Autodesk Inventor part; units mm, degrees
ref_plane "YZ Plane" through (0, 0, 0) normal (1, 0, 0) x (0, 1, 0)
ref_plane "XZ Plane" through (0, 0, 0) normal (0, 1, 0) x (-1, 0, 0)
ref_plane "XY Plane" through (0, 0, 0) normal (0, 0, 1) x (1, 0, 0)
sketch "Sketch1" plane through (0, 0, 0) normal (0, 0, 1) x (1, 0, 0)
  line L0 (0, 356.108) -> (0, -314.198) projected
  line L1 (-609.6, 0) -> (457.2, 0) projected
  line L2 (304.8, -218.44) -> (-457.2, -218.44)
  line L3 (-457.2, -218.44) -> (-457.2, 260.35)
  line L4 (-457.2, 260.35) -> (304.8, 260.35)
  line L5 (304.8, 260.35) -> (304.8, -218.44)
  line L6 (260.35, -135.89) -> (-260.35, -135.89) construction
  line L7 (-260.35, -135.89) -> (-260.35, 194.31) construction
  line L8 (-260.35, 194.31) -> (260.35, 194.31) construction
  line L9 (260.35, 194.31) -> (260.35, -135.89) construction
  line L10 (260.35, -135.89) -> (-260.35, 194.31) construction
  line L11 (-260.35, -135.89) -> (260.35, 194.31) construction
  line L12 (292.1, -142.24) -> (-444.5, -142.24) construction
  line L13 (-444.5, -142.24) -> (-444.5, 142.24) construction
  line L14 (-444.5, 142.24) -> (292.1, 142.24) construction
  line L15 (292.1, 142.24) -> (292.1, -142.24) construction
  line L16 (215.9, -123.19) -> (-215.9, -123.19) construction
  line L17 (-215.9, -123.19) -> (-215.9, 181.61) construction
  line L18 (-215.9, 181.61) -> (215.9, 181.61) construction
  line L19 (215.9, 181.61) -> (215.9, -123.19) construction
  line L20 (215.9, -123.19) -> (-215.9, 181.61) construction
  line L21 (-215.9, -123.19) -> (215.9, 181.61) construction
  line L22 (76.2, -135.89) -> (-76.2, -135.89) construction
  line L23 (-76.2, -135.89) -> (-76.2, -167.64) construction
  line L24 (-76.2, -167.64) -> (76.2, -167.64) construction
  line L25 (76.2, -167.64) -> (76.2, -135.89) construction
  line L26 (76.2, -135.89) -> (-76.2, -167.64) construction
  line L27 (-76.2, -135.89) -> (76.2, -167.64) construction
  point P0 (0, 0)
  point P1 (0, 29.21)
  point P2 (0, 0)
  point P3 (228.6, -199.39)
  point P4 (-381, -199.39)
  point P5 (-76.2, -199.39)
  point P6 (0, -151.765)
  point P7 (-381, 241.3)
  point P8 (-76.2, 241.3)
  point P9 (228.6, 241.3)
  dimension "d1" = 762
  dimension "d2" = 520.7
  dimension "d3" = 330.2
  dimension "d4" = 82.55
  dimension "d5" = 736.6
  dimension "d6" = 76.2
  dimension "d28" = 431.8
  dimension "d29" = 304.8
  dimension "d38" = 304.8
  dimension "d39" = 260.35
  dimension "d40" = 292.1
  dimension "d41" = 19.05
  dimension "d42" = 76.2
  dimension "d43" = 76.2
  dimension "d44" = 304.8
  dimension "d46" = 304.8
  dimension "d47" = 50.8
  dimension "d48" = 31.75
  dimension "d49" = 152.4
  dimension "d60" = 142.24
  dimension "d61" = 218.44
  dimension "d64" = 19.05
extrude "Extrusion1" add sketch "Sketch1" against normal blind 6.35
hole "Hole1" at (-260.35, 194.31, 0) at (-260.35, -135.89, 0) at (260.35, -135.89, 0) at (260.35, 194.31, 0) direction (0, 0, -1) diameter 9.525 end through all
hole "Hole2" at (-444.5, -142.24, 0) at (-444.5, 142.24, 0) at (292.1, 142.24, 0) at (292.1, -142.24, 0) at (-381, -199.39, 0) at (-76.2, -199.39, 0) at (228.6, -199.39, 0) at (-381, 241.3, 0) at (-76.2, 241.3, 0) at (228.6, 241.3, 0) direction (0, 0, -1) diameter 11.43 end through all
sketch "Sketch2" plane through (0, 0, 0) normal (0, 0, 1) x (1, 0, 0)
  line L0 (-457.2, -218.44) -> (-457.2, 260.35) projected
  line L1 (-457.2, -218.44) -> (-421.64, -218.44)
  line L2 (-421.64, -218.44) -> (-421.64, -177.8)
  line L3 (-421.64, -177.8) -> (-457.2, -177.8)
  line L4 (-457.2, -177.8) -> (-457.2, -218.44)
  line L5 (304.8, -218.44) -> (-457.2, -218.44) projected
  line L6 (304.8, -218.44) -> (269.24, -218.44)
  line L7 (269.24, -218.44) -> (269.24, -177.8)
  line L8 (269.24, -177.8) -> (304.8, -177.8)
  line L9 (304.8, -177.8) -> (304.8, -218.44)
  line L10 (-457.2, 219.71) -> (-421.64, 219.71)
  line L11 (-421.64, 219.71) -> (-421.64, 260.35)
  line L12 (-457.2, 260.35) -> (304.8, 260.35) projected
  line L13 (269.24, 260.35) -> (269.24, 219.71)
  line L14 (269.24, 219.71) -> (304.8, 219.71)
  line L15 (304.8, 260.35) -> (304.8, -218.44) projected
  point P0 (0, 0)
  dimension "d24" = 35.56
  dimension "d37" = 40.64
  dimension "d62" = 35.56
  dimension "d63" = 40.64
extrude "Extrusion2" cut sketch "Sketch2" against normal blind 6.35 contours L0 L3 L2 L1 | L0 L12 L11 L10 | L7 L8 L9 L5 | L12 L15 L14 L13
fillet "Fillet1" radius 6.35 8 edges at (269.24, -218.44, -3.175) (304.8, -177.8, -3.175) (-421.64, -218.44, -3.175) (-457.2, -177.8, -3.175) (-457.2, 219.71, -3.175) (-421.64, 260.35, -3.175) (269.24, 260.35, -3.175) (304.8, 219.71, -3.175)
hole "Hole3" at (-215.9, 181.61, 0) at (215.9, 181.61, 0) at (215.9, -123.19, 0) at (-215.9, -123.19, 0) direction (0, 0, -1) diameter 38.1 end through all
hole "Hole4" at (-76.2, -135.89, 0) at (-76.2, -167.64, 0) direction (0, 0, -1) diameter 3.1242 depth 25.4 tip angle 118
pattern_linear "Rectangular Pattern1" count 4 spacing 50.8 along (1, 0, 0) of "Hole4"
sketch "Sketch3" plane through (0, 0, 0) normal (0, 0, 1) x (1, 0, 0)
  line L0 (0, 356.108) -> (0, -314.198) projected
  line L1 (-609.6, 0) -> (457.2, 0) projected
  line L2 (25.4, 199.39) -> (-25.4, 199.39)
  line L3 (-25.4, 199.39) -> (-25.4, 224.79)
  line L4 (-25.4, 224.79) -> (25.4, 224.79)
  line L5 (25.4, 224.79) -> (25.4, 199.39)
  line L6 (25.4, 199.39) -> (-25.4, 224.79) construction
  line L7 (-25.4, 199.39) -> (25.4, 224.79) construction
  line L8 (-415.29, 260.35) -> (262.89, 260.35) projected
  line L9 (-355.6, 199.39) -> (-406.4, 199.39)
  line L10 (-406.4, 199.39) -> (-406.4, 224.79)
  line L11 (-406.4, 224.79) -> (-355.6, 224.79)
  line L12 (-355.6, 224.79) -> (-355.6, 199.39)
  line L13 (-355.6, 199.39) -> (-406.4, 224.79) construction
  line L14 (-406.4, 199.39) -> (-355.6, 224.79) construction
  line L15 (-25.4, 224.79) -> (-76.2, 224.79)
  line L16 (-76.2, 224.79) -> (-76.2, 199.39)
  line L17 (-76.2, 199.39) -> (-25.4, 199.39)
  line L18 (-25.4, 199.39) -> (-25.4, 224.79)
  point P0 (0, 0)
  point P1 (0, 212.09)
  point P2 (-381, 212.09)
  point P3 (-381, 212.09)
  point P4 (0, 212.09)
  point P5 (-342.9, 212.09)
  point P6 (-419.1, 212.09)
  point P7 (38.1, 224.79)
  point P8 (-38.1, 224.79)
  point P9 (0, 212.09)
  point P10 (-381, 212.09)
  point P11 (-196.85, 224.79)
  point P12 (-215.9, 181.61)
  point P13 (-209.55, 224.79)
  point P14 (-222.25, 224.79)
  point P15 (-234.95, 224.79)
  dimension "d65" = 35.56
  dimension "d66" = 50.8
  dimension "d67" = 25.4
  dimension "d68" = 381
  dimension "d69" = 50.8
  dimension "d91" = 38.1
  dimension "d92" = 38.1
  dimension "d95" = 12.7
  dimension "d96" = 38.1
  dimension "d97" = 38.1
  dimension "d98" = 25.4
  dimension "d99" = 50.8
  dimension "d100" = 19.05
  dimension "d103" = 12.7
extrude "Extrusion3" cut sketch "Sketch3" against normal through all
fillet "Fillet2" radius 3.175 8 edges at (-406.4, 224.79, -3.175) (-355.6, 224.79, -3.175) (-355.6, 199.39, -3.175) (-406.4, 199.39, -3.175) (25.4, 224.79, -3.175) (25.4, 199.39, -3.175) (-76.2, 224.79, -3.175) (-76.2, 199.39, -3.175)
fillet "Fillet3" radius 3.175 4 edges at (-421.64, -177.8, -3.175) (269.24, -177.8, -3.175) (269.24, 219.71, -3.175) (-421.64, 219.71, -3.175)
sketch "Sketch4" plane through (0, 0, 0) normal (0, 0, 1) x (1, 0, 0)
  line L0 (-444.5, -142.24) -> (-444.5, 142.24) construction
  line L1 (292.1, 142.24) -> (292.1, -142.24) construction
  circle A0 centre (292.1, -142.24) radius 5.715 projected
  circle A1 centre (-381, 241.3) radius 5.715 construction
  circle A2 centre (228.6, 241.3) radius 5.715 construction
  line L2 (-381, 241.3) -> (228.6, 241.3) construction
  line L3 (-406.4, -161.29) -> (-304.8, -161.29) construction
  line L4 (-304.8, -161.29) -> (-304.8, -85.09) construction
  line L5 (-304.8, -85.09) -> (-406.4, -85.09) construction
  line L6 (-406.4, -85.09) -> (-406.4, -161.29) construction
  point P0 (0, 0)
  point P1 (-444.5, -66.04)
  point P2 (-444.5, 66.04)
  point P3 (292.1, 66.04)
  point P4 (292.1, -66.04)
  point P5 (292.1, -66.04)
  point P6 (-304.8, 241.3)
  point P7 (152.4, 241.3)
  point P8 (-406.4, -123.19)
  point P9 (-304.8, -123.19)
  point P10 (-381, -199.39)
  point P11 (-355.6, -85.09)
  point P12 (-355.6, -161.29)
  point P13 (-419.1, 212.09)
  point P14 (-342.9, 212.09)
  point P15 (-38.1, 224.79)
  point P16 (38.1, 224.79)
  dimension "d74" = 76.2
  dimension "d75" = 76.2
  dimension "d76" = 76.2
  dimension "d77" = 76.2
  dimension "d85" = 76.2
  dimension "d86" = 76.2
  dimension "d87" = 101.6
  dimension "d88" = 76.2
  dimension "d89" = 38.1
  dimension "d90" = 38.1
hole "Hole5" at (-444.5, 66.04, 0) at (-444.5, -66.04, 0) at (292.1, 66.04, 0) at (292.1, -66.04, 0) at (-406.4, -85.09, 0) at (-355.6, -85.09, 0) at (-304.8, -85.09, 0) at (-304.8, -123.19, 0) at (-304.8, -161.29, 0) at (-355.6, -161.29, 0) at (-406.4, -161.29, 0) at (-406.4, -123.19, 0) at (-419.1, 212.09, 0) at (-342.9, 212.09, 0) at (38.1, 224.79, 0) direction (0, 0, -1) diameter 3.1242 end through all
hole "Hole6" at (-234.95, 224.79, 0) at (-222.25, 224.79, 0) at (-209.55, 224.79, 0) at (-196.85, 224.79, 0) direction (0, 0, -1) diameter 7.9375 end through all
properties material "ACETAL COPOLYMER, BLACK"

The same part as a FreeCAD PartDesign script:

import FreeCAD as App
import Part
import Sketcher
Q = App.Units.Quantity


def edges_at(feature, points):
    """Names of the edges that pass closest to the given points."""
    edges = feature.Shape.Edges
    near = lambda p: min(range(len(edges)), key=lambda i: edges[i].distToShape(Part.Vertex(*p))[0])
    return sorted({f"Edge{near(p) + 1}" for p in points})

doc = App.newDocument("Part")
params = doc.addObject("Spreadsheet::Sheet", "Params")
for row, (alias, value) in enumerate([
    ("sketch1_width", "30 in"),
    ("pad1_length", "0.25 in"),
    ("sketch2_diameter", "0.375 in"),
    ("hole_diameter", "0.375 in"),
    ("sketch3_diameter", "0.45 in"),
    ("hole2_diameter", "0.45 in"),
    ("sketch4_width", "1.4 in"),
    ("sketch4_height", "1.6 in"),
    ("pocket1_length", "0.25 in"),
    ("fillet_radius", "0.25 in"),
    ("sketch5_diameter", "1.5 in"),
    ("hole3_diameter", "1.5 in"),
    ("sketch6_diameter", "0.123 in"),
    ("hole4_diameter", "0.123 in"),
    ("hole4_depth", "1 in"),
    ("linearpattern_pitch", "2 in"),
    ("sketch7_width", "2 in"),
    ("sketch7_height", "1 in"),
    ("sketch7_width2", "4 in"),
    ("fillet2_radius", "0.125 in"),
    ("fillet3_radius", "0.125 in"),
    ("sketch8_diameter", "0.123 in"),
    ("hole5_diameter", "0.123 in"),
    ("sketch9_diameter", "0.3125 in"),
    ("hole6_diameter", "0.3125 in"),
], start=1):
    params.set(f"A{row}", alias)
    params.set(f"B{row}", "=" + value)
    params.setAlias(f"B{row}", alias)

body = doc.addObject("PartDesign::Body", "Body")

sketch1 = body.newObject("Sketcher::SketchObject", "Sketch")
sketch1.AttachmentSupport = (doc.getObject("XY_Plane"), [""])
sketch1.MapMode = "FlatFace"
sketch1.addGeometry([
    Part.LineSegment(App.Vector(305, 260, 0), App.Vector(-457, 260, 0)),
    Part.LineSegment(App.Vector(-457, 260, 0), App.Vector(-457, -218, 0)),
    Part.LineSegment(App.Vector(-457, -218, 0), App.Vector(305, -218, 0)),
    Part.LineSegment(App.Vector(305, -218, 0), App.Vector(305, 260, 0)),
], False)
sketch1.addConstraint([
    Sketcher.Constraint("Coincident", 0, 2, 1, 1),
    Sketcher.Constraint("Coincident", 1, 2, 2, 1),
    Sketcher.Constraint("Coincident", 2, 2, 3, 1),
    Sketcher.Constraint("Coincident", 3, 2, 0, 1),
    Sketcher.Constraint("Horizontal", 0),
    Sketcher.Constraint("Vertical", 1),
    Sketcher.Constraint("Horizontal", 2),
    Sketcher.Constraint("Vertical", 3),
    Sketcher.Constraint("DistanceX", 0, 2, 0, 1, Q("30 in")),
    Sketcher.Constraint("DistanceX", -1, 1, 2, 2, Q("12 in")),
    Sketcher.Constraint("DistanceY", 1, 2, -1, 1, Q("8.6 in")),
    Sketcher.Constraint("DistanceY", -1, 1, 0, 2, Q("10.25 in")),
])
sketch1.setExpression("Constraints[8]", "Params.sketch1_width")
pad1 = body.newObject("PartDesign::Pad", "Pad")
pad1.Profile = sketch1
pad1.setExpression("Length", "Params.pad1_length")
pad1.Reversed = True

sketch2 = body.newObject("Sketcher::SketchObject", "Sketch001")
sketch2.AttachmentSupport = (doc.getObject("XY_Plane"), [""])
sketch2.MapMode = "FlatFace"
sketch2.addGeometry([
    Part.Circle(App.Vector(-260.4, 194.3, 0), App.Vector(0, 0, 1), 4.8),
    Part.Circle(App.Vector(-260.4, -135.9, 0), App.Vector(0, 0, 1), 4.8),
    Part.Circle(App.Vector(260.4, -135.9, 0), App.Vector(0, 0, 1), 4.8),
    Part.Circle(App.Vector(260.4, 194.3, 0), App.Vector(0, 0, 1), 4.8),
], False)
sketch2.addConstraint([
    Sketcher.Constraint("Equal", 0, 1),
    Sketcher.Constraint("Equal", 1, 2),
    Sketcher.Constraint("Equal", 2, 3),
    Sketcher.Constraint("Symmetric", 1, 3, 2, 3, -2),
    Sketcher.Constraint("Symmetric", 0, 3, 3, 3, -2),
    Sketcher.Constraint("Vertical", 0, 3, 1, 3),
    Sketcher.Constraint("Diameter", 0, Q("0.375 in")),
    Sketcher.Constraint("DistanceY", 1, 3, 0, 3, Q("13 in")),
    Sketcher.Constraint("DistanceX", 1, 3, 2, 3, Q("20.5 in")),
    Sketcher.Constraint("DistanceY", -1, 1, 0, 3, Q("7.65 in")),
])
sketch2.setExpression("Constraints[6]", "Params.sketch2_diameter")
doc.recompute()
hole = body.newObject("PartDesign::Hole", "Hole")
hole.Profile = sketch2
hole.ThreadType = "None"
hole.setExpression("Diameter", "Params.hole_diameter")
hole.DepthType = "ThroughAll"

sketch3 = body.newObject("Sketcher::SketchObject", "Sketch002")
sketch3.AttachmentSupport = (doc.getObject("XY_Plane"), [""])
sketch3.MapMode = "FlatFace"
sketch3.addGeometry([
    Part.Circle(App.Vector(-444, -142, 0), App.Vector(0, 0, 1), 6),
    Part.Circle(App.Vector(-444, 142, 0), App.Vector(0, 0, 1), 6),
    Part.Circle(App.Vector(292, 142, 0), App.Vector(0, 0, 1), 6),
    Part.Circle(App.Vector(292, -142, 0), App.Vector(0, 0, 1), 6),
    Part.Circle(App.Vector(-381, -199, 0), App.Vector(0, 0, 1), 6),
    Part.Circle(App.Vector(-76, -199, 0), App.Vector(0, 0, 1), 6),
    Part.Circle(App.Vector(229, -199, 0), App.Vector(0, 0, 1), 6),
    Part.Circle(App.Vector(-381, 241, 0), App.Vector(0, 0, 1), 6),
    Part.Circle(App.Vector(-76, 241, 0), App.Vector(0, 0, 1), 6),
    Part.Circle(App.Vector(229, 241, 0), App.Vector(0, 0, 1), 6),
], False)
sketch3.addConstraint([
    Sketcher.Constraint("Equal", 0, 1),
    Sketcher.Constraint("Equal", 1, 2),
    Sketcher.Constraint("Equal", 2, 3),
    Sketcher.Constraint("Equal", 3, 4),
    Sketcher.Constraint("Equal", 4, 5),
    Sketcher.Constraint("Equal", 5, 6),
    Sketcher.Constraint("Equal", 6, 7),
    Sketcher.Constraint("Equal", 7, 8),
    Sketcher.Constraint("Equal", 8, 9),
    Sketcher.Constraint("Symmetric", 0, 3, 1, 3, -1),
    Sketcher.Constraint("Symmetric", 2, 3, 3, 3, -1),
    Sketcher.Constraint("Horizontal", 1, 3, 2, 3),
    Sketcher.Constraint("Horizontal", 4, 3, 5, 3),
    Sketcher.Constraint("Horizontal", 5, 3, 6, 3),
    Sketcher.Constraint("Horizontal", 7, 3, 8, 3),
    Sketcher.Constraint("Horizontal", 8, 3, 9, 3),
    Sketcher.Constraint("Vertical", 4, 3, 7, 3),
    Sketcher.Constraint("Vertical", 5, 3, 8, 3),
    Sketcher.Constraint("Vertical", 6, 3, 9, 3),
    Sketcher.Constraint("Diameter", 0, Q("0.45 in")),
    Sketcher.Constraint("DistanceX", 4, 3, -1, 1, Q("15 in")),
    Sketcher.Constraint("DistanceX", 5, 3, -1, 1, Q("3 in")),
    Sketcher.Constraint("DistanceX", -1, 1, 6, 3, Q("9 in")),
    Sketcher.Constraint("DistanceX", 1, 3, 2, 3, Q("29 in")),
    Sketcher.Constraint("DistanceX", 0, 3, -1, 1, Q("17.5 in")),
    Sketcher.Constraint("DistanceY", 0, 3, -1, 1, Q("5.6 in")),
    Sketcher.Constraint("DistanceY", -1, 1, 7, 3, Q("9.5 in")),
    Sketcher.Constraint("DistanceY", 4, 3, -1, 1, Q("7.85 in")),
])
sketch3.setExpression("Constraints[19]", "Params.sketch3_diameter")
doc.recompute()
hole2 = body.newObject("PartDesign::Hole", "Hole001")
hole2.Profile = sketch3
hole2.ThreadType = "None"
hole2.setExpression("Diameter", "Params.hole2_diameter")
hole2.DepthType = "ThroughAll"

sketch4 = body.newObject("Sketcher::SketchObject", "Sketch003")
sketch4.AttachmentSupport = (doc.getObject("XY_Plane"), [""])
sketch4.MapMode = "FlatFace"
sketch4.addGeometry([
    Part.LineSegment(App.Vector(-457, -178, 0), App.Vector(-457, -218, 0)),
    Part.LineSegment(App.Vector(-457, -218, 0), App.Vector(-422, -218, 0)),
    Part.LineSegment(App.Vector(-422, -218, 0), App.Vector(-422, -178, 0)),
    Part.LineSegment(App.Vector(-422, -178, 0), App.Vector(-457, -178, 0)),
    Part.LineSegment(App.Vector(-457, 260, 0), App.Vector(-457, 220, 0)),
    Part.LineSegment(App.Vector(-457, 220, 0), App.Vector(-422, 220, 0)),
    Part.LineSegment(App.Vector(-422, 220, 0), App.Vector(-422, 260, 0)),
    Part.LineSegment(App.Vector(-422, 260, 0), App.Vector(-457, 260, 0)),
    Part.LineSegment(App.Vector(269, -178, 0), App.Vector(269, -218, 0)),
    Part.LineSegment(App.Vector(269, -218, 0), App.Vector(305, -218, 0)),
    Part.LineSegment(App.Vector(305, -218, 0), App.Vector(305, -178, 0)),
    Part.LineSegment(App.Vector(305, -178, 0), App.Vector(269, -178, 0)),
    Part.LineSegment(App.Vector(305, 260, 0), App.Vector(269, 260, 0)),
    Part.LineSegment(App.Vector(269, 260, 0), App.Vector(269, 220, 0)),
    Part.LineSegment(App.Vector(269, 220, 0), App.Vector(305, 220, 0)),
    Part.LineSegment(App.Vector(305, 220, 0), App.Vector(305, 260, 0)),
], False)
sketch4.addConstraint([
    Sketcher.Constraint("Coincident", 0, 2, 1, 1),
    Sketcher.Constraint("Coincident", 1, 2, 2, 1),
    Sketcher.Constraint("Coincident", 2, 2, 3, 1),
    Sketcher.Constraint("Coincident", 3, 2, 0, 1),
    Sketcher.Constraint("Coincident", 4, 2, 5, 1),
    Sketcher.Constraint("Coincident", 5, 2, 6, 1),
    Sketcher.Constraint("Coincident", 6, 2, 7, 1),
    Sketcher.Constraint("Coincident", 7, 2, 4, 1),
    Sketcher.Constraint("Coincident", 8, 2, 9, 1),
    Sketcher.Constraint("Coincident", 9, 2, 10, 1),
    Sketcher.Constraint("Coincident", 10, 2, 11, 1),
    Sketcher.Constraint("Coincident", 11, 2, 8, 1),
    Sketcher.Constraint("Coincident", 12, 2, 13, 1),
    Sketcher.Constraint("Coincident", 13, 2, 14, 1),
    Sketcher.Constraint("Coincident", 14, 2, 15, 1),
    Sketcher.Constraint("Coincident", 15, 2, 12, 1),
    Sketcher.Constraint("Vertical", 0),
    Sketcher.Constraint("Horizontal", 1),
    Sketcher.Constraint("Vertical", 2),
    Sketcher.Constraint("Horizontal", 3),
    Sketcher.Constraint("Vertical", 4),
    Sketcher.Constraint("Horizontal", 5),
    Sketcher.Constraint("Vertical", 6),
    Sketcher.Constraint("Horizontal", 7),
    Sketcher.Constraint("Vertical", 8),
    Sketcher.Constraint("Horizontal", 9),
    Sketcher.Constraint("Vertical", 10),
    Sketcher.Constraint("Horizontal", 11),
    Sketcher.Constraint("Horizontal", 12),
    Sketcher.Constraint("Vertical", 13),
    Sketcher.Constraint("Horizontal", 14),
    Sketcher.Constraint("Vertical", 15),
    Sketcher.Constraint("Horizontal", 1, 2, 8, 2),
    Sketcher.Constraint("Horizontal", 3, 2, 10, 2),
    Sketcher.Constraint("Horizontal", 7, 2, 12, 2),
    Sketcher.Constraint("Horizontal", 5, 2, 13, 2),
    Sketcher.Constraint("Vertical", 3, 2, 4, 2),
    Sketcher.Constraint("Vertical", 2, 2, 5, 2),
    Sketcher.Constraint("Vertical", 11, 2, 12, 2),
    Sketcher.Constraint("Vertical", 10, 2, 14, 2),
    Sketcher.Constraint("Equal", 7, 9),
    Sketcher.Constraint("Equal", 2, 4),
    Sketcher.Constraint("DistanceX", 1, 1, 1, 2, Q("1.4 in")),
    Sketcher.Constraint("DistanceY", 0, 2, 0, 1, Q("1.6 in")),
    Sketcher.Constraint("DistanceX", 0, 2, -1, 1, Q("18 in")),
    Sketcher.Constraint("DistanceY", 2, 2, -1, 1, Q("7 in")),
    Sketcher.Constraint("DistanceX", -1, 1, 9, 2, Q("12 in")),
    Sketcher.Constraint("DistanceY", -1, 1, 4, 2, Q("8.65 in")),
])
sketch4.setExpression("Constraints[42]", "Params.sketch4_width")
sketch4.setExpression("Constraints[43]", "Params.sketch4_height")
pocket1 = body.newObject("PartDesign::Pocket", "Pocket")
pocket1.Profile = sketch4
pocket1.setExpression("Length", "Params.pocket1_length")
doc.recompute()

fillet = body.newObject("PartDesign::Fillet", "Fillet")
fillet.Base = (pocket1, edges_at(pocket1, [
    (269.24, -218.44, -3.175),
    (304.8, -177.8, -3.175),
    (-421.64, -218.44, -3.175),
    (-457.2, -177.8, -3.175),
    (-457.2, 219.71, -3.175),
    (-421.64, 260.35, -3.175),
    (269.24, 260.35, -3.175),
    (304.8, 219.71, -3.175),
]))
fillet.setExpression("Radius", "Params.fillet_radius")

sketch5 = body.newObject("Sketcher::SketchObject", "Sketch004")
sketch5.AttachmentSupport = (doc.getObject("XY_Plane"), [""])
sketch5.MapMode = "FlatFace"
sketch5.addGeometry([
    Part.Circle(App.Vector(-216, 182, 0), App.Vector(0, 0, 1), 19),
    Part.Circle(App.Vector(216, 182, 0), App.Vector(0, 0, 1), 19),
    Part.Circle(App.Vector(216, -123, 0), App.Vector(0, 0, 1), 19),
    Part.Circle(App.Vector(-216, -123, 0), App.Vector(0, 0, 1), 19),
], False)
sketch5.addConstraint([
    Sketcher.Constraint("Equal", 0, 1),
    Sketcher.Constraint("Equal", 1, 2),
    Sketcher.Constraint("Equal", 2, 3),
    Sketcher.Constraint("Symmetric", 0, 3, 1, 3, -2),
    Sketcher.Constraint("Symmetric", 2, 3, 3, 3, -2),
    Sketcher.Constraint("Vertical", 1, 3, 2, 3),
    Sketcher.Constraint("Diameter", 0, Q("1.5 in")),
    Sketcher.Constraint("DistanceX", 0, 3, 1, 3, Q("17 in")),
    Sketcher.Constraint("DistanceY", 2, 3, 1, 3, Q("12 in")),
    Sketcher.Constraint("DistanceY", -1, 1, 0, 3, Q("7.15 in")),
])
sketch5.setExpression("Constraints[6]", "Params.sketch5_diameter")
doc.recompute()
hole3 = body.newObject("PartDesign::Hole", "Hole002")
hole3.Profile = sketch5
hole3.ThreadType = "None"
hole3.setExpression("Diameter", "Params.hole3_diameter")
hole3.DepthType = "ThroughAll"

sketch6 = body.newObject("Sketcher::SketchObject", "Sketch005")
sketch6.AttachmentSupport = (doc.getObject("XY_Plane"), [""])
sketch6.MapMode = "FlatFace"
sketch6.addGeometry([
    Part.Circle(App.Vector(-76.2, -135.9, 0), App.Vector(0, 0, 1), 1.6),
    Part.Circle(App.Vector(-76.2, -167.6, 0), App.Vector(0, 0, 1), 1.6),
], False)
sketch6.addConstraint([
    Sketcher.Constraint("Equal", 0, 1),
    Sketcher.Constraint("Vertical", 0, 3, 1, 3),
    Sketcher.Constraint("Diameter", 0, Q("0.123 in")),
    Sketcher.Constraint("DistanceX", 0, 3, -1, 1, Q("3 in")),
    Sketcher.Constraint("DistanceY", 1, 3, -1, 1, Q("6.6 in")),
    Sketcher.Constraint("DistanceY", 0, 3, -1, 1, Q("5.35 in")),
])
sketch6.setExpression("Constraints[2]", "Params.sketch6_diameter")
doc.recompute()
hole4 = body.newObject("PartDesign::Hole", "Hole003")
hole4.Profile = sketch6
hole4.ThreadType = "None"
hole4.setExpression("Diameter", "Params.hole4_diameter")
hole4.DepthType = "Dimension"
hole4.setExpression("Depth", "Params.hole4_depth")
hole4.DrillPoint = "Angled"
hole4.DrillPointAngle = 118
doc.recompute()

linearpattern = body.newObject("PartDesign::LinearPattern", "LinearPattern")
linearpattern.Originals = [hole4]
linearpattern.Direction = (doc.getObject("X_Axis"), [""])
linearpattern.Mode = "offset"
linearpattern.setExpression("Offset", "Params.linearpattern_pitch")
linearpattern.Occurrences = 4
body.Tip = linearpattern

sketch7 = body.newObject("Sketcher::SketchObject", "Sketch006")
sketch7.AttachmentSupport = (doc.getObject("XY_Plane"), [""])
sketch7.MapMode = "FlatFace"
sketch7.addGeometry([
    Part.LineSegment(App.Vector(25, 225, 0), App.Vector(-76, 225, 0)),
    Part.LineSegment(App.Vector(-76, 225, 0), App.Vector(-76, 199, 0)),
    Part.LineSegment(App.Vector(-76, 199, 0), App.Vector(25, 199, 0)),
    Part.LineSegment(App.Vector(25, 199, 0), App.Vector(25, 225, 0)),
    Part.LineSegment(App.Vector(-406, 199, 0), App.Vector(-356, 199, 0)),
    Part.LineSegment(App.Vector(-356, 199, 0), App.Vector(-356, 225, 0)),
    Part.LineSegment(App.Vector(-356, 225, 0), App.Vector(-406, 225, 0)),
    Part.LineSegment(App.Vector(-406, 225, 0), App.Vector(-406, 199, 0)),
], False)
sketch7.addConstraint([
    Sketcher.Constraint("Coincident", 0, 2, 1, 1),
    Sketcher.Constraint("Coincident", 1, 2, 2, 1),
    Sketcher.Constraint("Coincident", 2, 2, 3, 1),
    Sketcher.Constraint("Coincident", 3, 2, 0, 1),
    Sketcher.Constraint("Coincident", 4, 2, 5, 1),
    Sketcher.Constraint("Coincident", 5, 2, 6, 1),
    Sketcher.Constraint("Coincident", 6, 2, 7, 1),
    Sketcher.Constraint("Coincident", 7, 2, 4, 1),
    Sketcher.Constraint("Horizontal", 0),
    Sketcher.Constraint("Vertical", 1),
    Sketcher.Constraint("Horizontal", 2),
    Sketcher.Constraint("Vertical", 3),
    Sketcher.Constraint("Horizontal", 4),
    Sketcher.Constraint("Vertical", 5),
    Sketcher.Constraint("Horizontal", 6),
    Sketcher.Constraint("Vertical", 7),
    Sketcher.Constraint("Horizontal", 2, 2, 4, 2),
    Sketcher.Constraint("Horizontal", 3, 2, 5, 2),
    Sketcher.Constraint("DistanceX", 4, 1, 4, 2, Q("2 in")),
    Sketcher.Constraint("DistanceY", 1, 2, 1, 1, Q("1 in")),
    Sketcher.Constraint("DistanceX", -1, 1, 2, 2, Q("1 in")),
    Sketcher.Constraint("DistanceX", 4, 2, 2, 2, Q("15 in")),
    Sketcher.Constraint("DistanceX", 0, 2, 0, 1, Q("4 in")),
    Sketcher.Constraint("DistanceY", -1, 1, 0, 2, Q("8.85 in")),
])
sketch7.setExpression("Constraints[18]", "Params.sketch7_width")
sketch7.setExpression("Constraints[19]", "Params.sketch7_height")
sketch7.setExpression("Constraints[22]", "Params.sketch7_width2")
pocket2 = body.newObject("PartDesign::Pocket", "Pocket001")
pocket2.Profile = sketch7
pocket2.Type = "ThroughAll"
doc.recompute()

fillet2 = body.newObject("PartDesign::Fillet", "Fillet001")
fillet2.Base = (pocket2, edges_at(pocket2, [
    (-406.4, 224.79, -3.175),
    (-355.6, 224.79, -3.175),
    (-355.6, 199.39, -3.175),
    (-406.4, 199.39, -3.175),
    (25.4, 224.79, -3.175),
    (25.4, 199.39, -3.175),
    (-76.2, 224.79, -3.175),
    (-76.2, 199.39, -3.175),
]))
fillet2.setExpression("Radius", "Params.fillet2_radius")
doc.recompute()

fillet3 = body.newObject("PartDesign::Fillet", "Fillet002")
fillet3.Base = (fillet2, edges_at(fillet2, [
    (-421.64, -177.8, -3.175),
    (269.24, -177.8, -3.175),
    (269.24, 219.71, -3.175),
    (-421.64, 219.71, -3.175),
]))
fillet3.setExpression("Radius", "Params.fillet3_radius")

sketch8 = body.newObject("Sketcher::SketchObject", "Sketch007")
sketch8.AttachmentSupport = (doc.getObject("XY_Plane"), [""])
sketch8.MapMode = "FlatFace"
sketch8.addGeometry([
    Part.Circle(App.Vector(-444.5, 66, 0), App.Vector(0, 0, 1), 1.6),
    Part.Circle(App.Vector(-444.5, -66, 0), App.Vector(0, 0, 1), 1.6),
    Part.Circle(App.Vector(292.1, 66, 0), App.Vector(0, 0, 1), 1.6),
    Part.Circle(App.Vector(292.1, -66, 0), App.Vector(0, 0, 1), 1.6),
    Part.Circle(App.Vector(-406.4, -85.1, 0), App.Vector(0, 0, 1), 1.6),
    Part.Circle(App.Vector(-355.6, -85.1, 0), App.Vector(0, 0, 1), 1.6),
    Part.Circle(App.Vector(-304.8, -85.1, 0), App.Vector(0, 0, 1), 1.6),
    Part.Circle(App.Vector(-304.8, -123.2, 0), App.Vector(0, 0, 1), 1.6),
    Part.Circle(App.Vector(-304.8, -161.3, 0), App.Vector(0, 0, 1), 1.6),
    Part.Circle(App.Vector(-355.6, -161.3, 0), App.Vector(0, 0, 1), 1.6),
    Part.Circle(App.Vector(-406.4, -161.3, 0), App.Vector(0, 0, 1), 1.6),
    Part.Circle(App.Vector(-406.4, -123.2, 0), App.Vector(0, 0, 1), 1.6),
    Part.Circle(App.Vector(-419.1, 212.1, 0), App.Vector(0, 0, 1), 1.6),
    Part.Circle(App.Vector(-342.9, 212.1, 0), App.Vector(0, 0, 1), 1.6),
    Part.Circle(App.Vector(38.1, 224.8, 0), App.Vector(0, 0, 1), 1.6),
], False)
sketch8.addConstraint([
    Sketcher.Constraint("Equal", 0, 1),
    Sketcher.Constraint("Equal", 1, 2),
    Sketcher.Constraint("Equal", 2, 3),
    Sketcher.Constraint("Equal", 3, 4),
    Sketcher.Constraint("Equal", 4, 5),
    Sketcher.Constraint("Equal", 5, 6),
    Sketcher.Constraint("Equal", 6, 7),
    Sketcher.Constraint("Equal", 7, 8),
    Sketcher.Constraint("Equal", 8, 9),
    Sketcher.Constraint("Equal", 9, 10),
    Sketcher.Constraint("Equal", 10, 11),
    Sketcher.Constraint("Equal", 11, 12),
    Sketcher.Constraint("Equal", 12, 13),
    Sketcher.Constraint("Equal", 13, 14),
    Sketcher.Constraint("Symmetric", 0, 3, 1, 3, -1),
    Sketcher.Constraint("Symmetric", 2, 3, 3, 3, -1),
    Sketcher.Constraint("Horizontal", 0, 3, 2, 3),
    Sketcher.Constraint("Horizontal", 4, 3, 5, 3),
    Sketcher.Constraint("Horizontal", 5, 3, 6, 3),
    Sketcher.Constraint("Horizontal", 8, 3, 9, 3),
    Sketcher.Constraint("Horizontal", 9, 3, 10, 3),
    Sketcher.Constraint("Horizontal", 7, 3, 11, 3),
    Sketcher.Constraint("Horizontal", 12, 3, 13, 3),
    Sketcher.Constraint("Vertical", 6, 3, 7, 3),
    Sketcher.Constraint("Vertical", 7, 3, 8, 3),
    Sketcher.Constraint("Vertical", 5, 3, 9, 3),
    Sketcher.Constraint("Vertical", 4, 3, 10, 3),
    Sketcher.Constraint("Vertical", 10, 3, 11, 3),
    Sketcher.Constraint("Diameter", 0, Q("0.123 in")),
    Sketcher.Constraint("DistanceX", 4, 3, -1, 1, Q("16 in")),
    Sketcher.Constraint("DistanceX", 5, 3, -1, 1, Q("14 in")),
    Sketcher.Constraint("DistanceX", 6, 3, -1, 1, Q("12 in")),
    Sketcher.Constraint("DistanceX", 0, 3, 2, 3, Q("29 in")),
    Sketcher.Constraint("DistanceY", 8, 3, 6, 3, Q("3 in")),
    Sketcher.Constraint("DistanceX", 0, 3, 12, 3, Q("1 in")),
    Sketcher.Constraint("DistanceX", 12, 3, 13, 3, Q("3 in")),
    Sketcher.Constraint("DistanceX", 14, 3, 2, 3, Q("10 in")),
    Sketcher.Constraint("DistanceX", 0, 3, -1, 1, Q("17.5 in")),
    Sketcher.Constraint("DistanceY", -1, 1, 0, 3, Q("2.6 in")),
    Sketcher.Constraint("DistanceY", 7, 3, 6, 3, Q("1.5 in")),
    Sketcher.Constraint("DistanceY", 4, 3, 12, 3, Q("11.7 in")),
    Sketcher.Constraint("DistanceY", 13, 3, 14, 3, Q("0.5 in")),
    Sketcher.Constraint("DistanceY", 4, 3, -1, 1, Q("3.35 in")),
])
sketch8.setExpression("Constraints[28]", "Params.sketch8_diameter")
doc.recompute()
hole5 = body.newObject("PartDesign::Hole", "Hole004")
hole5.Profile = sketch8
hole5.ThreadType = "None"
hole5.setExpression("Diameter", "Params.hole5_diameter")
hole5.DepthType = "ThroughAll"

sketch9 = body.newObject("Sketcher::SketchObject", "Sketch008")
sketch9.AttachmentSupport = (doc.getObject("XY_Plane"), [""])
sketch9.MapMode = "FlatFace"
sketch9.addGeometry([
    Part.Circle(App.Vector(-234.9, 224.8, 0), App.Vector(0, 0, 1), 4),
    Part.Circle(App.Vector(-222.2, 224.8, 0), App.Vector(0, 0, 1), 4),
    Part.Circle(App.Vector(-209.6, 224.8, 0), App.Vector(0, 0, 1), 4),
    Part.Circle(App.Vector(-196.8, 224.8, 0), App.Vector(0, 0, 1), 4),
], False)
sketch9.addConstraint([
    Sketcher.Constraint("Equal", 0, 1),
    Sketcher.Constraint("Equal", 1, 2),
    Sketcher.Constraint("Equal", 2, 3),
    Sketcher.Constraint("Horizontal", 0, 3, 1, 3),
    Sketcher.Constraint("Horizontal", 1, 3, 2, 3),
    Sketcher.Constraint("Horizontal", 2, 3, 3, 3),
    Sketcher.Constraint("Diameter", 0, Q("0.3125 in")),
    Sketcher.Constraint("DistanceX", 0, 3, 2, 3, Q("1 in")),
    Sketcher.Constraint("DistanceX", 1, 3, 3, 3, Q("1 in")),
    Sketcher.Constraint("DistanceX", 0, 3, 1, 3, Q("0.5 in")),
    Sketcher.Constraint("DistanceX", 0, 3, -1, 1, Q("9.25 in")),
    Sketcher.Constraint("DistanceY", -1, 1, 0, 3, Q("8.85 in")),
])
sketch9.setExpression("Constraints[6]", "Params.sketch9_diameter")
doc.recompute()
hole6 = body.newObject("PartDesign::Hole", "Hole005")
hole6.Profile = sketch9
hole6.ThreadType = "None"
hole6.setExpression("Diameter", "Params.hole6_diameter")
hole6.DepthType = "ThroughAll"

doc.recompute()
